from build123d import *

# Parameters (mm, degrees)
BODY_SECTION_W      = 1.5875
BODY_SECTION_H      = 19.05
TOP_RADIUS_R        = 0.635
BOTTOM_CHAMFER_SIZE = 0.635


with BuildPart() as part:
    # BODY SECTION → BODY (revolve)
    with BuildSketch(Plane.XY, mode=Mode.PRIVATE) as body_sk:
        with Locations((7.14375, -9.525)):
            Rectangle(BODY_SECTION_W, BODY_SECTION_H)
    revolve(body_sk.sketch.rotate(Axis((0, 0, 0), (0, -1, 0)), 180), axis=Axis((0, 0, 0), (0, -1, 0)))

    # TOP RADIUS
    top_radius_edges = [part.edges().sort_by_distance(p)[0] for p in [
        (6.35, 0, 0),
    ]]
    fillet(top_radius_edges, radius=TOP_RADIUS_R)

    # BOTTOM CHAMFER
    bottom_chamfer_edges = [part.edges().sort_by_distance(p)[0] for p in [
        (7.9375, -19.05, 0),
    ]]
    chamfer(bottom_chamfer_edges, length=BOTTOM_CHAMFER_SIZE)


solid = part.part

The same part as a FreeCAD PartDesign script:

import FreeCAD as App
import Part
import Sketcher
from FreeCAD import Vector
Q = App.Units.Quantity


def edges_at(feature, points):
    """Names of the edges that pass closest to the given points."""
    edges = feature.Shape.Edges
    near = lambda p: min(range(len(edges)), key=lambda i: edges[i].distToShape(Part.Vertex(*p))[0])
    return sorted({f"Edge{near(p) + 1}" for p in points})

doc = App.newDocument("Part")
body = doc.addObject("PartDesign::Body", "Body")

# Sketch on XY plane
sketch1 = body.newObject("Sketcher::SketchObject", "Sketch")
sketch1.AttachmentSupport = (doc.getObject("XY_Plane"), [""])
sketch1.MapMode = "FlatFace"
sketch1.addGeometry(Part.LineSegment(Vector(6.3, 0, 0), Vector(6.3, -19.1, 0)), False)
sketch1.addGeometry(Part.LineSegment(Vector(6.3, -19.1, 0), Vector(7.9, -19.1, 0)), False)
sketch1.addGeometry(Part.LineSegment(Vector(7.9, -19.1, 0), Vector(7.9, 0, 0)), False)
sketch1.addGeometry(Part.LineSegment(Vector(7.9, 0, 0), Vector(6.3, 0, 0)), False)
sketch1.addConstraint(Sketcher.Constraint("Coincident", 0, 2, 1, 1))
sketch1.addConstraint(Sketcher.Constraint("Coincident", 1, 2, 2, 1))
sketch1.addConstraint(Sketcher.Constraint("Coincident", 2, 2, 3, 1))
sketch1.addConstraint(Sketcher.Constraint("Coincident", 3, 2, 0, 1))
sketch1.addConstraint(Sketcher.Constraint("Vertical", 0))
sketch1.addConstraint(Sketcher.Constraint("Horizontal", 1))
sketch1.addConstraint(Sketcher.Constraint("Vertical", 2))
sketch1.addConstraint(Sketcher.Constraint("Horizontal", 3))
sketch1.addConstraint(Sketcher.Constraint("PointOnObject", 2, 2, -1))
sketch1.addConstraint(Sketcher.Constraint("DistanceY", 0, 2, 0, 1, Q("0.75 in")))
sketch1.addConstraint(Sketcher.Constraint("DistanceX", 1, 1, 1, 2, Q("0.0625 in")))
sketch1.addConstraint(Sketcher.Constraint("DistanceX", -1, 1, 0, 2, Q("0.25 in")))
revolution = body.newObject("PartDesign::Revolution", "Revolution")
revolution.Profile = sketch1
revolution.ReferenceAxis = (sketch1, ["V_Axis"])
revolution.Angle = 360
doc.recompute()

fillet = body.newObject("PartDesign::Fillet", "Fillet")
fillet.Base = (revolution, edges_at(revolution, [(6.35, 0, 0)]))
fillet.Radius = Q("0.025 in")
doc.recompute()

chamfer = body.newObject("PartDesign::Chamfer", "Chamfer")
chamfer.Base = (fillet, edges_at(fillet, [(7.938, -19.05, 0)]))
chamfer.Size = Q("0.025 in")

doc.recompute()
